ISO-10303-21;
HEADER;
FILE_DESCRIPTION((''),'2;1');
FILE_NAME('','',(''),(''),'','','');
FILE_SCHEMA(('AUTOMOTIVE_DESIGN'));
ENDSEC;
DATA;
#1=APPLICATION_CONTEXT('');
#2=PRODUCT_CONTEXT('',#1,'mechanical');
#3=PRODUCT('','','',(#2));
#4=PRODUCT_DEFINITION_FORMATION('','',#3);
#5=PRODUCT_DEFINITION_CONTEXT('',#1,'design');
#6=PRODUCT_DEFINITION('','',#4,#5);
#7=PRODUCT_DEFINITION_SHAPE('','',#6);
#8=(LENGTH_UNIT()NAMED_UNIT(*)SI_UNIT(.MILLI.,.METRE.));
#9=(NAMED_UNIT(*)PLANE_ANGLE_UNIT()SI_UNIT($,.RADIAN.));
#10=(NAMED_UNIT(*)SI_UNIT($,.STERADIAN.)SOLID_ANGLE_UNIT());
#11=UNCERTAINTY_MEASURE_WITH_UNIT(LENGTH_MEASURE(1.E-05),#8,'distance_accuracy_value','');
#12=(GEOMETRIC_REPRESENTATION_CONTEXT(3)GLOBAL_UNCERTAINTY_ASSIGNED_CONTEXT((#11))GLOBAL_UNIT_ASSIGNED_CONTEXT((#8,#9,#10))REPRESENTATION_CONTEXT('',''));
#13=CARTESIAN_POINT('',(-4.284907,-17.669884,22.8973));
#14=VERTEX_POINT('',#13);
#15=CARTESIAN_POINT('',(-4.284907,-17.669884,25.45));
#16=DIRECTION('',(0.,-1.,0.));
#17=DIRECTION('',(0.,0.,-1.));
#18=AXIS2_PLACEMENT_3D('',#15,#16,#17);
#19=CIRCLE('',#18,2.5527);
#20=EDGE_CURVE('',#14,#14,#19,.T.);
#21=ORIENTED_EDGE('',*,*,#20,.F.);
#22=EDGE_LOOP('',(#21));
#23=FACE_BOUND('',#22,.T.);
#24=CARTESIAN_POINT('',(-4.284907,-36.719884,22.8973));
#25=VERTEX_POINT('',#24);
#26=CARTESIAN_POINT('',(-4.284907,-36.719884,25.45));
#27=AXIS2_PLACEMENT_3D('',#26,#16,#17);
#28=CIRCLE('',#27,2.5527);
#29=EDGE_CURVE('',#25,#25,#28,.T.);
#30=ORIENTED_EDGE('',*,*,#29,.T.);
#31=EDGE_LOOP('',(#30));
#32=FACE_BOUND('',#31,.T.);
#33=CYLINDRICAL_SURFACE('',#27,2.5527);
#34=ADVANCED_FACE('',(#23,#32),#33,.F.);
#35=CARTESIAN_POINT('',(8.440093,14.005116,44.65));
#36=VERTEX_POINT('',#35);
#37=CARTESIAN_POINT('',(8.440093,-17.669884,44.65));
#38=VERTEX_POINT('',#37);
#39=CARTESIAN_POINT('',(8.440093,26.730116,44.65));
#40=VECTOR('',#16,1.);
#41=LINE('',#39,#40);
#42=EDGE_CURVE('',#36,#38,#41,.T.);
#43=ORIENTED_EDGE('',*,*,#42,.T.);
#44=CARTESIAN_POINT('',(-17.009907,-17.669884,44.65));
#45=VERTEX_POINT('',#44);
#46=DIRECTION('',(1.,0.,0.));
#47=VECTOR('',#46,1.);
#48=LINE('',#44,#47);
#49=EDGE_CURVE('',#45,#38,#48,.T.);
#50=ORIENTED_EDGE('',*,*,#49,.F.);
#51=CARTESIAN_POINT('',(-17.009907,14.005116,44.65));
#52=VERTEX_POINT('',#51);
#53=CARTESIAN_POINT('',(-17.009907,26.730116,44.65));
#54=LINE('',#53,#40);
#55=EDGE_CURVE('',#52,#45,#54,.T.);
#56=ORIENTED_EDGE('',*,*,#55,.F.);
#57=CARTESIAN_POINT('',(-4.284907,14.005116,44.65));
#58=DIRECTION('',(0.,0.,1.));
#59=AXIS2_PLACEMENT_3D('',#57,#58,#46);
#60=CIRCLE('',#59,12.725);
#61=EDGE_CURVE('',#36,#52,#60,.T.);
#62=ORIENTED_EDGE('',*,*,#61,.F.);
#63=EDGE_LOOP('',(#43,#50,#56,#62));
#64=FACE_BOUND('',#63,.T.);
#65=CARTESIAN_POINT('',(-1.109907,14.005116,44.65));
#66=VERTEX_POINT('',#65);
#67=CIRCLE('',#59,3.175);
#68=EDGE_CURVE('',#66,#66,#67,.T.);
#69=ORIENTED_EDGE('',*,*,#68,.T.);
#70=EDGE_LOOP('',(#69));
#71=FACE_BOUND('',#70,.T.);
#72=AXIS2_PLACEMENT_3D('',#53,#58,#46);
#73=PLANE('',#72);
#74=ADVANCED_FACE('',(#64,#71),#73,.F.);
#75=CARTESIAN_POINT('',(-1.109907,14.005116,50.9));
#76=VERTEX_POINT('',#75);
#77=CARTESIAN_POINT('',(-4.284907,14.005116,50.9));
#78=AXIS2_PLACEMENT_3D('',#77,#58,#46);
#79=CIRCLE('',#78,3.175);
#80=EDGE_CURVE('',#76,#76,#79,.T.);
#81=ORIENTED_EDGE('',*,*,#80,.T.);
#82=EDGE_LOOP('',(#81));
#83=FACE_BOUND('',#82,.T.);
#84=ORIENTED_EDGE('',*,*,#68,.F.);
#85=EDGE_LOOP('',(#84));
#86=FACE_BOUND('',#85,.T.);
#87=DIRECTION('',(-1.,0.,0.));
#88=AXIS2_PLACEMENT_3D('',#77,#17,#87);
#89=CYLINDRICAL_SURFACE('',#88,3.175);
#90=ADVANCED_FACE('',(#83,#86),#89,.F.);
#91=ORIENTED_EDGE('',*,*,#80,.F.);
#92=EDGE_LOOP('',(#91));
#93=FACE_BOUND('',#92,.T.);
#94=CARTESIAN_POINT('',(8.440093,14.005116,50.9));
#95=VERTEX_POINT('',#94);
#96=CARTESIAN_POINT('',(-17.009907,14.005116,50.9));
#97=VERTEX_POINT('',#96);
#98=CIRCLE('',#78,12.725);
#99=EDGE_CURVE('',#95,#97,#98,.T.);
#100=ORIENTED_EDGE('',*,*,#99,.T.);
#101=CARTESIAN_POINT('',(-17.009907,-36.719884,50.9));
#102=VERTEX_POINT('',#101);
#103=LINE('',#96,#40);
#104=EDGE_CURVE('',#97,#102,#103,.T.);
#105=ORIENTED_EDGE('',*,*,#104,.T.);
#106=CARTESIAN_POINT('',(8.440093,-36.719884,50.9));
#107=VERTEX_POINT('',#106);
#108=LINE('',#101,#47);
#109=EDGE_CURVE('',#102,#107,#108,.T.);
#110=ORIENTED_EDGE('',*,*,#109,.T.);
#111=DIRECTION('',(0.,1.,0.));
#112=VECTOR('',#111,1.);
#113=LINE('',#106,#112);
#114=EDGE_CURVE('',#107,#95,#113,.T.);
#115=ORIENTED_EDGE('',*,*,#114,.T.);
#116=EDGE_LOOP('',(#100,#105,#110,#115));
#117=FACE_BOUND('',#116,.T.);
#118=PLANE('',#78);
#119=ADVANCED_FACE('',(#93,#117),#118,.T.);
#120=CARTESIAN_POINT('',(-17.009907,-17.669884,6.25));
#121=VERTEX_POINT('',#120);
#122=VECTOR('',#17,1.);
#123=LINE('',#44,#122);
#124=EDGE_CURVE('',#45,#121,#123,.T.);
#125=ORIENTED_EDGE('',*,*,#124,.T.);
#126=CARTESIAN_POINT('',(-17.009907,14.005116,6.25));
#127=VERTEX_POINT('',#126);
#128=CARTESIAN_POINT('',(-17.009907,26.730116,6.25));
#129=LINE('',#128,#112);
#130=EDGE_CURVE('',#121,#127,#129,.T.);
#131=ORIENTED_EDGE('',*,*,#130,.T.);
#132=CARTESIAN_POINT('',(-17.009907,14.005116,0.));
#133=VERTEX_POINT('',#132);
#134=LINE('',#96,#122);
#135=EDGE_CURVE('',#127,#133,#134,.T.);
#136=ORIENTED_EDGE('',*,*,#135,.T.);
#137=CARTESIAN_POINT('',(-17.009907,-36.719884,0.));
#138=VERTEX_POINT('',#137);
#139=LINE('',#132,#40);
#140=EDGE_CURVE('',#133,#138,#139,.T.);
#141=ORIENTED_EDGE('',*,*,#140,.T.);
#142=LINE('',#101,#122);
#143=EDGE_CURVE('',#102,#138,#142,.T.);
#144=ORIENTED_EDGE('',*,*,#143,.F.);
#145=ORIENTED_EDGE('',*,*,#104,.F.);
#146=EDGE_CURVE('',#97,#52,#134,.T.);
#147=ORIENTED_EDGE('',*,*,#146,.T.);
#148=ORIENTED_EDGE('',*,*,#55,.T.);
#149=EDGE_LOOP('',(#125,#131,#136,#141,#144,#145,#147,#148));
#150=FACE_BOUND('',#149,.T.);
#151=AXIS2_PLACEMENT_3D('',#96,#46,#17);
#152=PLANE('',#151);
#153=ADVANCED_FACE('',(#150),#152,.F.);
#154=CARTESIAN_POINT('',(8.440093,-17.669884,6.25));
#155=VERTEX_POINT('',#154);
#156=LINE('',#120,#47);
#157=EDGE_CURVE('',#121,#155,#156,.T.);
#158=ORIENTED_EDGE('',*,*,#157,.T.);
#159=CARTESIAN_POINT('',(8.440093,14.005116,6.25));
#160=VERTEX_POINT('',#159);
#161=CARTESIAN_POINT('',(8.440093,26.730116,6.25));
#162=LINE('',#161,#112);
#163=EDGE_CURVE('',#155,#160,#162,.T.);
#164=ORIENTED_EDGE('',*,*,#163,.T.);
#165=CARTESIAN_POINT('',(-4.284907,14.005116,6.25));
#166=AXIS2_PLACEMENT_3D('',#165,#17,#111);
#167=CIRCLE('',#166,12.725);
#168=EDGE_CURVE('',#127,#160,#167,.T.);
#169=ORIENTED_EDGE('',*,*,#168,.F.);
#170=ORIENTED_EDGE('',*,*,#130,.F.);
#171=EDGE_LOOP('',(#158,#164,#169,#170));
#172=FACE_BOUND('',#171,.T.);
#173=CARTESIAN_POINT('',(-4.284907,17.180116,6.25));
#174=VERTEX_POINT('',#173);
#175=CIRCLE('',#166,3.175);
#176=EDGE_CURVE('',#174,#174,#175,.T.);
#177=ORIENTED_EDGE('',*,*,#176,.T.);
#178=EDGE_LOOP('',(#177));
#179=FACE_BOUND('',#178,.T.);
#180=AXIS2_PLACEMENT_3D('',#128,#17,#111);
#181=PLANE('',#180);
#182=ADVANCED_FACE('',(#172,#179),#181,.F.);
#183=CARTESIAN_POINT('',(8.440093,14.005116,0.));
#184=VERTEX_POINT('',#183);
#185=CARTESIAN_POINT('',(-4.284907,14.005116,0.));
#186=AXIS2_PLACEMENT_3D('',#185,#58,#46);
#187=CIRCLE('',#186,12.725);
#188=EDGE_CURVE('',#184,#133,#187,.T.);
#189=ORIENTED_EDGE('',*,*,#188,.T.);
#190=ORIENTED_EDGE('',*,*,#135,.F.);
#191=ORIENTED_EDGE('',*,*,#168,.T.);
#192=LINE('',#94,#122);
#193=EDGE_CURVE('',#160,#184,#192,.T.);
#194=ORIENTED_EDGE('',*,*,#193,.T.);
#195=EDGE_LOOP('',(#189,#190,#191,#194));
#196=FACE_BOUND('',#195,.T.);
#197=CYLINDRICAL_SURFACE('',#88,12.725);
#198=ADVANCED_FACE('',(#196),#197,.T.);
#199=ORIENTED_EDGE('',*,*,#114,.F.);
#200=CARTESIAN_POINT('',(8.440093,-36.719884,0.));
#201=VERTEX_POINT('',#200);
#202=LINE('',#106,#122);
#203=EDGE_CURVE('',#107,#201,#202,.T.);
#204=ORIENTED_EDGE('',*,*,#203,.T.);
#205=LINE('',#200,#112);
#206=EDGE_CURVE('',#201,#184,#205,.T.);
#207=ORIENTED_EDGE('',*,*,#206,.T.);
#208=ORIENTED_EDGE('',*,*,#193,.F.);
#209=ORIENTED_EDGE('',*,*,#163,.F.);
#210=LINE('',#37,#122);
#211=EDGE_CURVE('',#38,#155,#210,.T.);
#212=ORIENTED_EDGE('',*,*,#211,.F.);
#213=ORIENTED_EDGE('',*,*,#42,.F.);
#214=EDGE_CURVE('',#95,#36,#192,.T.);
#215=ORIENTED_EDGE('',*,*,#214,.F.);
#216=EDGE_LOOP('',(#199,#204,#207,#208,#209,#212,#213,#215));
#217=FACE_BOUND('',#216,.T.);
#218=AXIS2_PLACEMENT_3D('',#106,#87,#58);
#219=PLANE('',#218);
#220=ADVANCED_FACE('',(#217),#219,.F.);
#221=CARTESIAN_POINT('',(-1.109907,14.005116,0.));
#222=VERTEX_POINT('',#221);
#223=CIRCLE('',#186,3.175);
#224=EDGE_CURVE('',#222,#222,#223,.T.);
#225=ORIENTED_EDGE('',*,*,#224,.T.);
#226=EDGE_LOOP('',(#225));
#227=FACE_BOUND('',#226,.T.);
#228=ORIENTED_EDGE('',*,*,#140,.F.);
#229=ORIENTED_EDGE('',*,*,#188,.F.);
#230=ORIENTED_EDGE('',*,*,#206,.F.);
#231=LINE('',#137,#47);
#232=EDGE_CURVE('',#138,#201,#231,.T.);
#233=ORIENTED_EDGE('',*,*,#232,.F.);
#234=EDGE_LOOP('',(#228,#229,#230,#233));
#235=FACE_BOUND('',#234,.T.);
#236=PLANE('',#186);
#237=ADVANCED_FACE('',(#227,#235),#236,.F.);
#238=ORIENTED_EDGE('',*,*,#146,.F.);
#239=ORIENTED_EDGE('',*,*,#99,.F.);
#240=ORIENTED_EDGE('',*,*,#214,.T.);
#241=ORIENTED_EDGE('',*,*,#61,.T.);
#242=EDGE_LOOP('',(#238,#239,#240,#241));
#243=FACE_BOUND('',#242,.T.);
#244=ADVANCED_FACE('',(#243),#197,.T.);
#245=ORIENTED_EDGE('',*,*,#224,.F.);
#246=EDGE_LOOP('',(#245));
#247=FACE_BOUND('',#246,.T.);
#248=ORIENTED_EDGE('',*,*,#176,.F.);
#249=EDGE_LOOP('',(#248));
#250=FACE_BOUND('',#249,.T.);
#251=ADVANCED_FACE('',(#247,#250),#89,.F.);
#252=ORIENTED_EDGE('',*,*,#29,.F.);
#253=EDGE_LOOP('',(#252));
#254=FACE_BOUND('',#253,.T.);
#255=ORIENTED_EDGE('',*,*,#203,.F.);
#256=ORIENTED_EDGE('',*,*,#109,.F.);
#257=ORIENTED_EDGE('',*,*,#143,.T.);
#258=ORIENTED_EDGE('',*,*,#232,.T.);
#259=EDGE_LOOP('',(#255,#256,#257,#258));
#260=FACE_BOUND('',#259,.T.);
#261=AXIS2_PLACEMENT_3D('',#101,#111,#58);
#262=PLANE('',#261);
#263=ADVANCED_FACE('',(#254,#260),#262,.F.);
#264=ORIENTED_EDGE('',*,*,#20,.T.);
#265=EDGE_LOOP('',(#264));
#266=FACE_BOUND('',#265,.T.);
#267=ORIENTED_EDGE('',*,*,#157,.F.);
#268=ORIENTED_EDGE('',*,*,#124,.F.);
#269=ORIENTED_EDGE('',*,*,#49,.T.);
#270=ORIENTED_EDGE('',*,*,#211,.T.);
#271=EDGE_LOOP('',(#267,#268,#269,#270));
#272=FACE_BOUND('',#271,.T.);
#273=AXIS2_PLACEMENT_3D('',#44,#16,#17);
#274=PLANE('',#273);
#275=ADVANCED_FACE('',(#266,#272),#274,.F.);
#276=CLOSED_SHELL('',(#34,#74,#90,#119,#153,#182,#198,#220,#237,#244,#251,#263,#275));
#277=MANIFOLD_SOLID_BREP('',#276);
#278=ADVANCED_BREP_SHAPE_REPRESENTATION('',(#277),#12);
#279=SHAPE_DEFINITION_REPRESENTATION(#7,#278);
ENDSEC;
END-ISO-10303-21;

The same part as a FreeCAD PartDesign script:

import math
import FreeCAD as App
import Part
import Sketcher

V = App.Vector
Q = App.Units.Quantity

doc = App.newDocument("Part")
body = doc.addObject("PartDesign::Body", "Body")

sketch1 = body.newObject("Sketcher::SketchObject", "Sketch")
sketch1.AttachmentSupport = (doc.getObject("XY_Plane"), [""])
sketch1.MapMode = "FlatFace"
sketch1.addGeometry([
    Part.LineSegment(V(-17, -36.7, 0), V(8.4, -36.7, 0)),
    Part.LineSegment(V(8.4, -36.7, 0), V(8.4, 14, 0)),
    Part.ArcOfCircle(Part.Circle(V(-4.3, 14, 0), V(0, 0, 1), 12.7), math.radians(0), math.radians(180)),
    Part.LineSegment(V(-17, 14, 0), V(-17, -36.7, 0)),
    Part.Circle(V(-4.3, 14, 0), V(0, 0, 1), 3.2),
], False)
sketch1.addConstraint([
    Sketcher.Constraint("Coincident", 0, 2, 1, 1),
    Sketcher.Constraint("Tangent", 1, 2, 2, 1),
    Sketcher.Constraint("Tangent", 2, 2, 3, 1),
    Sketcher.Constraint("Coincident", 3, 2, 0, 1),
    Sketcher.Constraint("Horizontal", 0),
    Sketcher.Constraint("Vertical", 1),
    Sketcher.Constraint("Vertical", 3),
    Sketcher.Constraint("Coincident", 4, 3, 2, 3),
    Sketcher.Constraint("Diameter", 4, Q("6.35 mm")),
    Sketcher.Constraint("Radius", 2, Q("12.725 mm")),
    Sketcher.Constraint("DistanceY", 1, 1, 1, 2, Q("50.725 mm")),
    Sketcher.Constraint("DistanceX", 2, 3, -1, 1, Q("4.284907 mm")),
    Sketcher.Constraint("DistanceY", -1, 1, 2, 3, Q("14.005116 mm")),
])
pad1 = body.newObject("PartDesign::Pad", "Pad")
pad1.Profile = sketch1
pad1.Length = 50.9

sketch2 = body.newObject("Sketcher::SketchObject", "Sketch001")
sketch2.AttachmentSupport = (doc.getObject("YZ_Plane"), [""])
sketch2.MapMode = "FlatFace"
sketch2.AttachmentOffset = App.Placement(V(0, 0, 8.440093), App.Rotation())
sketch2.addGeometry([
    Part.LineSegment(V(27, 45, 0), V(-18, 45, 0)),
    Part.LineSegment(V(-18, 45, 0), V(-18, 6, 0)),
    Part.LineSegment(V(-18, 6, 0), V(27, 6, 0)),
    Part.LineSegment(V(27, 6, 0), V(27, 45, 0)),
], False)
sketch2.addConstraint([
    Sketcher.Constraint("Coincident", 0, 2, 1, 1),
    Sketcher.Constraint("Coincident", 1, 2, 2, 1),
    Sketcher.Constraint("Coincident", 2, 2, 3, 1),
    Sketcher.Constraint("Coincident", 3, 2, 0, 1),
    Sketcher.Constraint("Horizontal", 0),
    Sketcher.Constraint("Vertical", 1),
    Sketcher.Constraint("Horizontal", 2),
    Sketcher.Constraint("Vertical", 3),
    Sketcher.Constraint("DistanceX", 0, 2, 0, 1, Q("44.4 mm")),
    Sketcher.Constraint("DistanceY", 1, 2, 1, 1, Q("38.4 mm")),
    Sketcher.Constraint("DistanceY", -1, 1, 0, 2, Q("44.65 mm")),
    Sketcher.Constraint("DistanceX", 0, 2, -1, 1, Q("17.669884 mm")),
])
pocket1 = body.newObject("PartDesign::Pocket", "Pocket")
pocket1.Profile = sketch2
pocket1.Type = "ThroughAll"

sketch3 = body.newObject("Sketcher::SketchObject", "Sketch002")
sketch3.AttachmentSupport = (doc.getObject("XZ_Plane"), [""])
sketch3.MapMode = "FlatFace"
sketch3.AttachmentOffset = App.Placement(V(0, 0, 36.719884), App.Rotation())
sketch3.addGeometry(Part.Circle(V(-4.3, 25.4, 0), V(0, 0, 1), 2.6), False)
sketch3.addConstraint([
    Sketcher.Constraint("Diameter", 0, Q("5.1054 mm")),
    Sketcher.Constraint("DistanceY", -1, 1, 0, 3, Q("25.45 mm")),
    Sketcher.Constraint("DistanceX", 0, 3, -1, 1, Q("4.284907 mm")),
])
doc.recompute()
hole = body.newObject("PartDesign::Hole", "Hole")
hole.Profile = sketch3
hole.ThreadType = "None"
hole.Diameter = 5.1054
hole.DepthType = "ThroughAll"

doc.recompute()
